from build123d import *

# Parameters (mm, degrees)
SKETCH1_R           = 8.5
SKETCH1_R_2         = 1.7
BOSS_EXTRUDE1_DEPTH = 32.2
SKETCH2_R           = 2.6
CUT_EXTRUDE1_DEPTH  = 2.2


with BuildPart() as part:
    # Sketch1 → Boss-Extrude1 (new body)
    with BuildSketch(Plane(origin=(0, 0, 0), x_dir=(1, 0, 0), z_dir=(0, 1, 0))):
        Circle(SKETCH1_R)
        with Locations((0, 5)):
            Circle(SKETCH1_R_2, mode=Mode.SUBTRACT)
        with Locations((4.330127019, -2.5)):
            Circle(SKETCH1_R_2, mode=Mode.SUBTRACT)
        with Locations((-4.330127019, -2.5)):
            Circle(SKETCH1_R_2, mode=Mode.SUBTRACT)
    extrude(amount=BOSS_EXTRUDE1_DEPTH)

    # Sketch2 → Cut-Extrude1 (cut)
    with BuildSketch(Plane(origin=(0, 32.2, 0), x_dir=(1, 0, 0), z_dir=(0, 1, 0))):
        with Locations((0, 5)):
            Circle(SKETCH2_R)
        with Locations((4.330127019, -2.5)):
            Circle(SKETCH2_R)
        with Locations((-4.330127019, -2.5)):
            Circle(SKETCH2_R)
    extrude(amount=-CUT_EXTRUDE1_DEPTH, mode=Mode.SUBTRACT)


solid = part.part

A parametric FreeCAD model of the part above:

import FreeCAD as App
import Part
import Sketcher

V = App.Vector

doc = App.newDocument("Part")
body = doc.addObject("PartDesign::Body", "Body")

# Sketch on XZ plane
sketch1 = body.newObject("Sketcher::SketchObject", "Sketch")
sketch1.AttachmentSupport = (doc.getObject("XZ_Plane"), [""])
sketch1.MapMode = "FlatFace"
sketch1.addGeometry([
    Part.Circle(V(0, 0, 0), V(0, 0, 1), 8.5),
    Part.Circle(V(-4.3, 2.5, 0), V(0, 0, 1), 1.7),
    Part.Circle(V(4.3, 2.5, 0), V(0, 0, 1), 1.7),
    Part.Circle(V(0, -5, 0), V(0, 0, 1), 1.7),
], False)
sketch1.addConstraint([
    Sketcher.Constraint("Coincident", 0, 3, -1, 1),
    Sketcher.Constraint("Equal", 1, 2),
    Sketcher.Constraint("Equal", 2, 3),
    Sketcher.Constraint("Symmetric", 1, 3, 2, 3, -2),
    Sketcher.Constraint("PointOnObject", 3, 3, -2),
    Sketcher.Constraint("Diameter", 0, 17.0),
    Sketcher.Constraint("Diameter", 1, 3.4),
    Sketcher.Constraint("DistanceY", 3, 3, -1, 1, 5.0),
    Sketcher.Constraint("DistanceY", -1, 1, 1, 3, 2.5),
    Sketcher.Constraint("DistanceX", 1, 3, -1, 1, 4.330127),
])
pad1 = body.newObject("PartDesign::Pad", "Pad")
pad1.Profile = sketch1
pad1.Length = 32.2
pad1.Reversed = True

# Sketch on XZ plane
sketch2 = body.newObject("Sketcher::SketchObject", "Sketch001")
sketch2.AttachmentSupport = (doc.getObject("XZ_Plane"), [""])
sketch2.MapMode = "FlatFace"
sketch2.AttachmentOffset = App.Placement(V(0, 0, -32.2), App.Rotation())
sketch2.addGeometry([
    Part.Circle(V(0, -5, 0), V(0, 0, 1), 2.6),
    Part.Circle(V(4.3, 2.5, 0), V(0, 0, 1), 2.6),
    Part.Circle(V(-4.3, 2.5, 0), V(0, 0, 1), 2.6),
], False)
sketch2.addConstraint([
    Sketcher.Constraint("Equal", 0, 1),
    Sketcher.Constraint("Equal", 1, 2),
    Sketcher.Constraint("Symmetric", 1, 3, 2, 3, -2),
    Sketcher.Constraint("PointOnObject", 0, 3, -2),
    Sketcher.Constraint("Diameter", 0, 5.2),
    Sketcher.Constraint("DistanceY", 0, 3, -1, 1, 5.0),
    Sketcher.Constraint("DistanceY", -1, 1, 1, 3, 2.5),
    Sketcher.Constraint("DistanceX", -1, 1, 1, 3, 4.330127),
])
pocket1 = body.newObject("PartDesign::Pocket", "Pocket")
pocket1.Profile = sketch2
pocket1.Length = 2.2
pocket1.Reversed = True

doc.recompute()
